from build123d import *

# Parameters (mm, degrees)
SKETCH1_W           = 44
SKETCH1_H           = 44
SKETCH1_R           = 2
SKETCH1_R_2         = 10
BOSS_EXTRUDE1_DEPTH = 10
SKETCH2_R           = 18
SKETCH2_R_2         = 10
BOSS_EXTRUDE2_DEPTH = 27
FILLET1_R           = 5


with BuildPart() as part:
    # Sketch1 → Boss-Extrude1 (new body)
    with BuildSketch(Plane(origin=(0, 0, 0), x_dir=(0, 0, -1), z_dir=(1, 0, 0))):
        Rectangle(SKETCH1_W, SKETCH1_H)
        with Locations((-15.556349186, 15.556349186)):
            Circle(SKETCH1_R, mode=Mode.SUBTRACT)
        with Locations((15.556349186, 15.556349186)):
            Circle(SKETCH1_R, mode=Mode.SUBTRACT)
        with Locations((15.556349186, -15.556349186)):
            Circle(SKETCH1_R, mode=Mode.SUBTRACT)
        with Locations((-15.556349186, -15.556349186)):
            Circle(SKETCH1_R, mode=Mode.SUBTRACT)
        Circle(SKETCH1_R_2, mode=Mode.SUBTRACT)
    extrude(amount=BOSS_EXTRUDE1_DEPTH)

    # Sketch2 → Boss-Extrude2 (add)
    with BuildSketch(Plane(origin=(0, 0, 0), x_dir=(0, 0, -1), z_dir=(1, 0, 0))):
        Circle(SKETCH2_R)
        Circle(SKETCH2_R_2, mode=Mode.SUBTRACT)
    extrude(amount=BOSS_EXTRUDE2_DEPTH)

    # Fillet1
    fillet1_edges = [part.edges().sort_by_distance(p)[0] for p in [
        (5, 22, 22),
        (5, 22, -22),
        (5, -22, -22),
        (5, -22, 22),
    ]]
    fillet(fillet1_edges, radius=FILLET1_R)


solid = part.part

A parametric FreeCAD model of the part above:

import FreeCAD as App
import Part
import Sketcher

V = App.Vector
Q = App.Units.Quantity


def edges_at(feature, points):
    """Names of the edges that pass closest to the given points."""
    edges = feature.Shape.Edges
    near = lambda p: min(range(len(edges)), key=lambda i: edges[i].distToShape(Part.Vertex(*p))[0])
    return sorted({f"Edge{near(p) + 1}" for p in points})

doc = App.newDocument("Part")
body = doc.addObject("PartDesign::Body", "Body")

sketch1 = body.newObject("Sketcher::SketchObject", "Sketch")
sketch1.AttachmentSupport = (doc.getObject("YZ_Plane"), [""])
sketch1.MapMode = "FlatFace"
sketch1.addGeometry([
    Part.LineSegment(V(22, 22, 0), V(-22, 22, 0)),
    Part.LineSegment(V(-22, 22, 0), V(-22, -22, 0)),
    Part.LineSegment(V(-22, -22, 0), V(22, -22, 0)),
    Part.LineSegment(V(22, -22, 0), V(22, 22, 0)),
    Part.Circle(V(-15.6, 15.6, 0), V(0, 0, 1), 2),
    Part.Circle(V(-15.6, -15.6, 0), V(0, 0, 1), 2),
    Part.Circle(V(15.6, 15.6, 0), V(0, 0, 1), 2),
    Part.Circle(V(0, 0, 0), V(0, 0, 1), 10),
    Part.Circle(V(15.6, -15.6, 0), V(0, 0, 1), 2),
], False)
sketch1.addConstraint([
    Sketcher.Constraint("Coincident", 0, 2, 1, 1),
    Sketcher.Constraint("Coincident", 1, 2, 2, 1),
    Sketcher.Constraint("Coincident", 2, 2, 3, 1),
    Sketcher.Constraint("Coincident", 3, 2, 0, 1),
    Sketcher.Constraint("Horizontal", 0),
    Sketcher.Constraint("Vertical", 1),
    Sketcher.Constraint("Horizontal", 2),
    Sketcher.Constraint("Vertical", 3),
    Sketcher.Constraint("Coincident", 7, 3, -1, 1),
    Sketcher.Constraint("Equal", 4, 5),
    Sketcher.Constraint("Equal", 5, 6),
    Sketcher.Constraint("Equal", 6, 8),
    Sketcher.Constraint("Symmetric", 5, 3, 6, 3, -1, 1),
    Sketcher.Constraint("Symmetric", 4, 3, 8, 3, -1, 1),
    Sketcher.Constraint("Symmetric", 0, 2, 2, 2, -1, 1),
    Sketcher.Constraint("Symmetric", 4, 3, 6, 3, -2),
    Sketcher.Constraint("Equal", 2, 1),
    Sketcher.Constraint("Diameter", 4, Q("4 mm")),
    Sketcher.Constraint("Diameter", 7, Q("20 mm")),
    Sketcher.Constraint("DistanceX", 0, 2, 0, 1, Q("44 mm")),
    Sketcher.Constraint("DistanceY", 5, 3, 4, 3, Q("31.112698 mm")),
    Sketcher.Constraint("DistanceX", 4, 3, 6, 3, Q("31.112698 mm")),
])
pad1 = body.newObject("PartDesign::Pad", "Pad")
pad1.Profile = sketch1
pad1.Length = 10

sketch2 = body.newObject("Sketcher::SketchObject", "Sketch001")
sketch2.AttachmentSupport = (doc.getObject("YZ_Plane"), [""])
sketch2.MapMode = "FlatFace"
sketch2.addGeometry([
    Part.Circle(V(0, 0, 0), V(0, 0, 1), 18),
    Part.Circle(V(0, 0, 0), V(0, 0, 1), 10),
], False)
sketch2.addConstraint([
    Sketcher.Constraint("Coincident", 0, 3, -1, 1),
    Sketcher.Constraint("Coincident", 1, 3, -1, 1),
    Sketcher.Constraint("Diameter", 0, Q("36 mm")),
    Sketcher.Constraint("Diameter", 1, Q("20 mm")),
])
pad2 = body.newObject("PartDesign::Pad", "Pad001")
pad2.Profile = sketch2
pad2.Length = 27
doc.recompute()

fillet = body.newObject("PartDesign::Fillet", "Fillet")
fillet.Base = (pad2, edges_at(pad2, [
    (5, 22, 22),
    (5, 22, -22),
    (5, -22, -22),
    (5, -22, 22),
]))
fillet.Radius = 5

doc.recompute()
